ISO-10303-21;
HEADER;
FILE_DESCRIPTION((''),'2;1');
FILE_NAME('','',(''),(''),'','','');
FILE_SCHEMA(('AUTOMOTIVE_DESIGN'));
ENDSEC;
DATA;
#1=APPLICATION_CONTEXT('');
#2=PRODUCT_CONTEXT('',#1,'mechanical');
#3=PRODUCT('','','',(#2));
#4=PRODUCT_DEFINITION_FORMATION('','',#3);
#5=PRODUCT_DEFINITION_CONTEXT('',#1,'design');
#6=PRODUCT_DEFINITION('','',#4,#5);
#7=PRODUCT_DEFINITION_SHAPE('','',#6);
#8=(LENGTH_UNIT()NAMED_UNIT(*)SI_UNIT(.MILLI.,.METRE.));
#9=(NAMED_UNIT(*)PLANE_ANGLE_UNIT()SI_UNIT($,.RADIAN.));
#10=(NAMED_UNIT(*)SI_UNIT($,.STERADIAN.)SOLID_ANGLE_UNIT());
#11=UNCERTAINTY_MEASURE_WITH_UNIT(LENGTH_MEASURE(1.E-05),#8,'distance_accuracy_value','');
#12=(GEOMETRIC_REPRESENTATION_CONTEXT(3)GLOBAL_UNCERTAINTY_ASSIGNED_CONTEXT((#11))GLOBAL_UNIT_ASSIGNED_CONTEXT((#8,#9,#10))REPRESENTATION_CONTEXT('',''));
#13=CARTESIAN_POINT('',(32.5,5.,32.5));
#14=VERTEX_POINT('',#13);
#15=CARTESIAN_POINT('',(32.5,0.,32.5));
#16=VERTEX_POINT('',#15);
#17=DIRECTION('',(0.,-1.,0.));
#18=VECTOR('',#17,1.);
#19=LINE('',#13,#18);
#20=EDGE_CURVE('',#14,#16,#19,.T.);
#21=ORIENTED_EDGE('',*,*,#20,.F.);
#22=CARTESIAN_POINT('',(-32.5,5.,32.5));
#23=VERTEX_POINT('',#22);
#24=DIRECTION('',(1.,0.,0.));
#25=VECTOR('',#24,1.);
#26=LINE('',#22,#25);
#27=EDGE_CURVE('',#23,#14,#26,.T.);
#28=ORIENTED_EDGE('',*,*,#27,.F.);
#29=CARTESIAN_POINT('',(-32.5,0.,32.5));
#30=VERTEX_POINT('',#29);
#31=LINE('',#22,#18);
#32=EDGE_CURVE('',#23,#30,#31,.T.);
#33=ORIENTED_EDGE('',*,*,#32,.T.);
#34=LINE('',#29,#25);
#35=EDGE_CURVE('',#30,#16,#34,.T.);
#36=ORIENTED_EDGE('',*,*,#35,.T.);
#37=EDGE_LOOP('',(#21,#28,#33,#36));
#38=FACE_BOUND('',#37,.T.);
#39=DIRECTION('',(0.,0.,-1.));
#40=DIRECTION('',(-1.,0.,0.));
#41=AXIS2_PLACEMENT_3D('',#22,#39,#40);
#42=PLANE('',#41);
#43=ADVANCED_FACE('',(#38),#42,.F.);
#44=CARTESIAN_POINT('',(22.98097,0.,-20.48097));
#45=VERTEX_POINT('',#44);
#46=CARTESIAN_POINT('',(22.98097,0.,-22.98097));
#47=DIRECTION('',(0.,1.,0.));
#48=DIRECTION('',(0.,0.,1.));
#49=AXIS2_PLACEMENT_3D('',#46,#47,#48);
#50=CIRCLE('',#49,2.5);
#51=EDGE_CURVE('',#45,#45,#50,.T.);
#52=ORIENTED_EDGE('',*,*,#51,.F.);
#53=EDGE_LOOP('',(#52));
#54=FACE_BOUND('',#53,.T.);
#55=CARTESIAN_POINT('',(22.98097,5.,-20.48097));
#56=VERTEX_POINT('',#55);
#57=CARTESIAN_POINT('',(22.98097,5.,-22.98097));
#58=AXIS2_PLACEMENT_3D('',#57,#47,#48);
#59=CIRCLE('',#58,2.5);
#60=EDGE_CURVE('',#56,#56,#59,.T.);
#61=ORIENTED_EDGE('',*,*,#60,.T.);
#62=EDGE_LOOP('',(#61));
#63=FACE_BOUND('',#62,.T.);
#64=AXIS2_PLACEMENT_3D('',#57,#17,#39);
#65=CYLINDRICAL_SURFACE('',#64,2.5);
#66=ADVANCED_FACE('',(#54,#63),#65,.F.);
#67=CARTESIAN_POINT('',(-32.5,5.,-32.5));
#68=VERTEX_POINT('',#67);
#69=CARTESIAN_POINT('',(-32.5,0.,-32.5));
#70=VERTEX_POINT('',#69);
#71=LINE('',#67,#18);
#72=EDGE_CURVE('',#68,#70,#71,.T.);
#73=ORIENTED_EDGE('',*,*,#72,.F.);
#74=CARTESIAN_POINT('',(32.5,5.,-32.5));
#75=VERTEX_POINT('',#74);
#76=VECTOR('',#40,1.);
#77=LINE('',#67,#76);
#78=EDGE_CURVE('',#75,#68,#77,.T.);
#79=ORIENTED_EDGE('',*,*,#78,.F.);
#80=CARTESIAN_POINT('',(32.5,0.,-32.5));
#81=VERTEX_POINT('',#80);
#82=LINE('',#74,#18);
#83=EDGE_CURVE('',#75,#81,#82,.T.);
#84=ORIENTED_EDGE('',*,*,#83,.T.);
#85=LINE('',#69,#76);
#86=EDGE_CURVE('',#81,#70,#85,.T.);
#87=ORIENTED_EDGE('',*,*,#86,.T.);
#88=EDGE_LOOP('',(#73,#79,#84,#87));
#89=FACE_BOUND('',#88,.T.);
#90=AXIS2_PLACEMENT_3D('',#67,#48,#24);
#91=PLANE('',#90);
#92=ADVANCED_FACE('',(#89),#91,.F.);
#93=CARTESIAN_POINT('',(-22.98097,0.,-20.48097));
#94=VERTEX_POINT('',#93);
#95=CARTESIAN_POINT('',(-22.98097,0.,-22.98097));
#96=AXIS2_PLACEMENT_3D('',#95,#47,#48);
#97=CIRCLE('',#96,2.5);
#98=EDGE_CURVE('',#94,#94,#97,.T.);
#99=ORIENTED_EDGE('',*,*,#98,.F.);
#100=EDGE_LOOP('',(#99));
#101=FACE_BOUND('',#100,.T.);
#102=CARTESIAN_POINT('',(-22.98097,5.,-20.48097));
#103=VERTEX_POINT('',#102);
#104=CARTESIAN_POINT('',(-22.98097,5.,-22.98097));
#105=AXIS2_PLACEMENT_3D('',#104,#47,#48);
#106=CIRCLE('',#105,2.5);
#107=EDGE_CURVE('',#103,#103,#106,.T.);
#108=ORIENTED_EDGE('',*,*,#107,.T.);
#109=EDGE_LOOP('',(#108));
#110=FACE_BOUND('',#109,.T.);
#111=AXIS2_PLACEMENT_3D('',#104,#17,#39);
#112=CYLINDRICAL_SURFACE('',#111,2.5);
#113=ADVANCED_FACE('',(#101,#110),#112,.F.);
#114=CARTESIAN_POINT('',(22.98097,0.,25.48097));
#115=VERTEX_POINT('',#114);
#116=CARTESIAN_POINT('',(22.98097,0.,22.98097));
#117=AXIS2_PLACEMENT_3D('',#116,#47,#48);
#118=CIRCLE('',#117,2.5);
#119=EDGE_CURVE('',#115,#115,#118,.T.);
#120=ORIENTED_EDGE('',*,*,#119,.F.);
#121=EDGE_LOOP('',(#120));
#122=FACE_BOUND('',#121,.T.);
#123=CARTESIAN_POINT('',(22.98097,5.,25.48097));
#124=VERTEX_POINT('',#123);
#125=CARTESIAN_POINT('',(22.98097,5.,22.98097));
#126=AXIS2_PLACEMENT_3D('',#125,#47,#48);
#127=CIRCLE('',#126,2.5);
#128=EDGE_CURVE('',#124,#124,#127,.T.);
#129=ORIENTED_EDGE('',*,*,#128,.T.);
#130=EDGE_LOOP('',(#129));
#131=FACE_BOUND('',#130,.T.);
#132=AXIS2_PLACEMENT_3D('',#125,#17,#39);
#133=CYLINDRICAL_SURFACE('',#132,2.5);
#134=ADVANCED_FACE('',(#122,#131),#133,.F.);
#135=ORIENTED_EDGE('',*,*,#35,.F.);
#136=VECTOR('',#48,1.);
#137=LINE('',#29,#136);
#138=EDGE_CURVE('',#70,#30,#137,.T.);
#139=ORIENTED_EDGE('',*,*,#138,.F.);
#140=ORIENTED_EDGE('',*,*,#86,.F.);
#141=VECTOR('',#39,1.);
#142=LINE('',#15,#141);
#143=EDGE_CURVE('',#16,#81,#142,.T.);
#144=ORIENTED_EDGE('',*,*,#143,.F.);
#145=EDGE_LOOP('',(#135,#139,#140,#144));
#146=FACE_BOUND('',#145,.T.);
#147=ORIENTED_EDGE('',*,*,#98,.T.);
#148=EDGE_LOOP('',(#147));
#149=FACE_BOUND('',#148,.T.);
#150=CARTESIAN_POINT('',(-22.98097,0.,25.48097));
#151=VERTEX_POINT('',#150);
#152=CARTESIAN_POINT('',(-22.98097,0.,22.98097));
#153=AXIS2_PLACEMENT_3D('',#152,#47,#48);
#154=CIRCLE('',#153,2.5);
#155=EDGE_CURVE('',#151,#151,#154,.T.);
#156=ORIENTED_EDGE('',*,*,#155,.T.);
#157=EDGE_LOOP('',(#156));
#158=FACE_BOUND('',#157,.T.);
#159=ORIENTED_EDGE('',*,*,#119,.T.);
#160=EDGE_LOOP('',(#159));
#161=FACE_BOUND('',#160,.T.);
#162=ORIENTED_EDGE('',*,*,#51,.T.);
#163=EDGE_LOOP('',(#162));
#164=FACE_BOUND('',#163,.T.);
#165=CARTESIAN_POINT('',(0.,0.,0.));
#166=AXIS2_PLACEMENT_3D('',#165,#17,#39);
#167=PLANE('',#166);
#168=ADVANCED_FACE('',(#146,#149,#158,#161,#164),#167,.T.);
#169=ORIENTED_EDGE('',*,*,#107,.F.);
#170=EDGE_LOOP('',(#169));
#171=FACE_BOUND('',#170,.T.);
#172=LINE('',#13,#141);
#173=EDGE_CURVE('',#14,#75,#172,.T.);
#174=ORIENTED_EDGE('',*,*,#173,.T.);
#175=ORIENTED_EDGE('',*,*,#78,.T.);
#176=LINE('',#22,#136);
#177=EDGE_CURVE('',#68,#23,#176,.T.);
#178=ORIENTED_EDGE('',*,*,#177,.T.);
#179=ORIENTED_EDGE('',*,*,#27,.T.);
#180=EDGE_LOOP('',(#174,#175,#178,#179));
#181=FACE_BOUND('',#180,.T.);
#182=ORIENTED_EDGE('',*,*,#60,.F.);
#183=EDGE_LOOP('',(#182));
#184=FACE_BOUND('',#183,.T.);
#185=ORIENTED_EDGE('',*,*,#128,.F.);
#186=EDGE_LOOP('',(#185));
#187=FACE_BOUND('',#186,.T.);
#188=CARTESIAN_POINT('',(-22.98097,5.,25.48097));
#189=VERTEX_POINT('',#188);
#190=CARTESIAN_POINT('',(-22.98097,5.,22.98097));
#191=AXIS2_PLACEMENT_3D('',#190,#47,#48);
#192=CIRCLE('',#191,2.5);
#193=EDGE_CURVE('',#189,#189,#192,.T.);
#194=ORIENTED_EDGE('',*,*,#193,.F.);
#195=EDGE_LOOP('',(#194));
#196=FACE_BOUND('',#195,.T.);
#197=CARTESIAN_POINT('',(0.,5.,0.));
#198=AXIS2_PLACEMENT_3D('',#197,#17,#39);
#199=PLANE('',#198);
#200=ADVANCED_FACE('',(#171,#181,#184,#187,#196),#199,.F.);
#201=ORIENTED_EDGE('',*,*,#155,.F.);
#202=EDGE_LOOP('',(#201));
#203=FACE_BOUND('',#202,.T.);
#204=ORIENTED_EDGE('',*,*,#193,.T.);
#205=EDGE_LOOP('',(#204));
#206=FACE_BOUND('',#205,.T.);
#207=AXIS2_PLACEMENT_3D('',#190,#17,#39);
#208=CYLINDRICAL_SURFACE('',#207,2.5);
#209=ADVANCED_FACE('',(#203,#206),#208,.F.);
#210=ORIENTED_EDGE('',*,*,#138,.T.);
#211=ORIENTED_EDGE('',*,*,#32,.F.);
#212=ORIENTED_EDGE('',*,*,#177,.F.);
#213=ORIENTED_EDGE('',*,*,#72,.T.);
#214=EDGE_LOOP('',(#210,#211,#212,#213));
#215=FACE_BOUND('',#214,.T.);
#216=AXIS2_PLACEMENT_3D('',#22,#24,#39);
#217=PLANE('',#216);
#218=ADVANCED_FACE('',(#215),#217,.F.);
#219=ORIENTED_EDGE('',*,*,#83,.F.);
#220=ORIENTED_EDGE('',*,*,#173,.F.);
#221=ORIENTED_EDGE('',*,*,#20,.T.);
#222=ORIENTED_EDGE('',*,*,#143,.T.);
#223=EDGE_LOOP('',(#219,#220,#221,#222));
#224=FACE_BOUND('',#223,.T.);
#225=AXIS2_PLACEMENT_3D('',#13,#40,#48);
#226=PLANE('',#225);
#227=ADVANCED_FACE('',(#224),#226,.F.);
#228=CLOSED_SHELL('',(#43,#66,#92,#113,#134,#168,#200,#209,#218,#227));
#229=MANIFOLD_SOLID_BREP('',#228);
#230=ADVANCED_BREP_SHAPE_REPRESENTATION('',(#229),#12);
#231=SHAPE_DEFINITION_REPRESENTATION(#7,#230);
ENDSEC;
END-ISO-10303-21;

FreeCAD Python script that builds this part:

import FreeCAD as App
import Part
import Sketcher

V = App.Vector
Q = App.Units.Quantity


def add_polygon(sketch, points):
    """Adds a closed chain of lines whose ends are joined by coincident constraints."""
    first, n = sketch.GeometryCount, len(points)
    for a, b in zip(points, points[1:] + points[:1]):
        sketch.addGeometry(Part.LineSegment(App.Vector(*a, 0), App.Vector(*b, 0)), False)
    for i in range(n):
        sketch.addConstraint(Sketcher.Constraint("Coincident", first + i, 2, first + (i + 1) % n, 1))

doc = App.newDocument("Part")
params = doc.addObject("Spreadsheet::Sheet", "Params")
for row, (alias, value) in enumerate([
    ("sketch1_diameter", "5 mm"),
    ("sketch1_width", "65 mm"),
    ("pad1_length", "5 mm"),
], start=1):
    params.set(f"A{row}", alias)
    params.set(f"B{row}", "=" + value)
    params.setAlias(f"B{row}", alias)

body = doc.addObject("PartDesign::Body", "Body")

sketch1 = doc.addObject("Sketcher::SketchObject", "Sketch")
body.addObject(sketch1)
sketch1.AttachmentSupport = (doc.XZ_Plane, [""])
sketch1.MapMode = "FlatFace"
add_polygon(sketch1, [(-32.5, -32.5), (-32.5, 32.5), (32.5, 32.5), (32.5, -32.5)])
sketch1.addGeometry(Part.Circle(V(-22.98097, 22.98097, 0), V(0, 0, 1), 2.5), False)
sketch1.addGeometry(Part.Circle(V(22.98097, 22.98097, 0), V(0, 0, 1), 2.5), False)
sketch1.addGeometry(Part.Circle(V(-22.98097, -22.98097, 0), V(0, 0, 1), 2.5), False)
sketch1.addGeometry(Part.Circle(V(22.98097, -22.98097, 0), V(0, 0, 1), 2.5), False)
sketch1.addConstraint(Sketcher.Constraint("Vertical", 0))
sketch1.addConstraint(Sketcher.Constraint("Horizontal", 1))
sketch1.addConstraint(Sketcher.Constraint("Vertical", 2))
sketch1.addConstraint(Sketcher.Constraint("Horizontal", 3))
sketch1.addConstraint(Sketcher.Constraint("Equal", 4, 5))
sketch1.addConstraint(Sketcher.Constraint("Equal", 5, 6))
sketch1.addConstraint(Sketcher.Constraint("Equal", 6, 7))
sketch1.addConstraint(Sketcher.Constraint("Symmetric", 5, 3, 6, 3, -1, 1))
sketch1.addConstraint(Sketcher.Constraint("Symmetric", 4, 3, 7, 3, -1, 1))
sketch1.addConstraint(Sketcher.Constraint("Symmetric", 0, 2, 2, 2, -1, 1))
sketch1.addConstraint(Sketcher.Constraint("Symmetric", 4, 3, 5, 3, -2))
sketch1.addConstraint(Sketcher.Constraint("Equal", 3, 0))
sketch1.addConstraint(Sketcher.Constraint("Diameter", 4, Q("5 mm")))
sketch1.addConstraint(Sketcher.Constraint("DistanceX", 1, 1, 1, 2, Q("65 mm")))
sketch1.addConstraint(Sketcher.Constraint("DistanceX", 4, 3, -1, 1, Q("22.98097 mm")))
sketch1.addConstraint(Sketcher.Constraint("DistanceY", -1, 1, 4, 3, Q("22.98097 mm")))
sketch1.setExpression("Constraints[16]", "Params.sketch1_diameter")
sketch1.setExpression("Constraints[17]", "Params.sketch1_width")
pad1 = doc.addObject("PartDesign::Pad", "Pad")
body.addObject(pad1)
pad1.Profile = sketch1
pad1.setExpression("Length", "Params.pad1_length")
pad1.Reversed = True

doc.recompute()
